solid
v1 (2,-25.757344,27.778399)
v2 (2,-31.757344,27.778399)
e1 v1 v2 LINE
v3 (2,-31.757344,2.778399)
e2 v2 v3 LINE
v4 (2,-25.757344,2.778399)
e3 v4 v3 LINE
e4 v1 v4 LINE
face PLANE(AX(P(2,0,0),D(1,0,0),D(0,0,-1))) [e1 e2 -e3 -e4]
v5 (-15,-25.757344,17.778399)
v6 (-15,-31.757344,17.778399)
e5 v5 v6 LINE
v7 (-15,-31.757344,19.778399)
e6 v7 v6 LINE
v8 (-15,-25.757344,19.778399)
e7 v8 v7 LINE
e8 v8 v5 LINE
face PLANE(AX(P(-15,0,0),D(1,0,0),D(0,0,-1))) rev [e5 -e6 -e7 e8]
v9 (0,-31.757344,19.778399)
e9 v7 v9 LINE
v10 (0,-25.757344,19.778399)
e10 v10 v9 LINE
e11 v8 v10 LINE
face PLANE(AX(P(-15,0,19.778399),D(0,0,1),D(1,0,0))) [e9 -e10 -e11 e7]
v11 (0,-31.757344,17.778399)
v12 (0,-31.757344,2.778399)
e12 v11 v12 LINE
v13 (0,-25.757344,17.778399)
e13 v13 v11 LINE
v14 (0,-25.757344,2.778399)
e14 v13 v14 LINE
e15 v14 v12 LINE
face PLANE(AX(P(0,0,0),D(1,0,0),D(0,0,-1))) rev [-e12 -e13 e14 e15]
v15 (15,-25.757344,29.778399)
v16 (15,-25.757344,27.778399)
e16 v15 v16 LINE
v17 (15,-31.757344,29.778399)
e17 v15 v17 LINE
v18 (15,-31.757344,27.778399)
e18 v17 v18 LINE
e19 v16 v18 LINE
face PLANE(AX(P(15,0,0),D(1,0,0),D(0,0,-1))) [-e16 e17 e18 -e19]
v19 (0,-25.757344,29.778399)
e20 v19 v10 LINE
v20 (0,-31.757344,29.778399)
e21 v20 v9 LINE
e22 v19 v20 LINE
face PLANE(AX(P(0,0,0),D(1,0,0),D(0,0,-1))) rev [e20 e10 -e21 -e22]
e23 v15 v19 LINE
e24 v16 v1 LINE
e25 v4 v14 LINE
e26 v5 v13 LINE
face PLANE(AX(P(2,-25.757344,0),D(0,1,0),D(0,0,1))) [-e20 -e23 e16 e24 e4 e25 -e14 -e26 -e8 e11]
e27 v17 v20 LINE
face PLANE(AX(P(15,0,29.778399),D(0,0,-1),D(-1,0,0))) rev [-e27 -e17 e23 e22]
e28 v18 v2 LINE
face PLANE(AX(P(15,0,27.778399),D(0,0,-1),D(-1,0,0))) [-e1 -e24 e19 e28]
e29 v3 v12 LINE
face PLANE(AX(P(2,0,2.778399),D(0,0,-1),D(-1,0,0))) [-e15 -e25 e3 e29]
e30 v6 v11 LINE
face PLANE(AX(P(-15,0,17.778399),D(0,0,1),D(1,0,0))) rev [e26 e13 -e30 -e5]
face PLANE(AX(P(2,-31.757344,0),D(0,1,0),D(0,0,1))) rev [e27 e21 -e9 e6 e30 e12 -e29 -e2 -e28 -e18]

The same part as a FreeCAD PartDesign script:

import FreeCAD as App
import Part
import Sketcher

V = App.Vector

doc = App.newDocument("Part")
params = doc.addObject("Spreadsheet::Sheet", "Params")
for row, (alias, value) in enumerate([
    ("sketch1_width", "6 mm"),
    ("sketch1_height", "25 mm"),
    ("pad1_length", "2 mm"),
    ("sketch2_width", "6 mm"),
    ("sketch2_height", "2 mm"),
    ("pad2_length", "15 mm"),
    ("sketch3_width", "6 mm"),
    ("sketch3_height", "2 mm"),
    ("pad3_length", "15 mm"),
], start=1):
    params.set(f"A{row}", alias)
    params.set(f"B{row}", "=" + value)
    params.setAlias(f"B{row}", alias)

body = doc.addObject("PartDesign::Body", "Body")

sketch1 = body.newObject("Sketcher::SketchObject", "Sketch")
sketch1.AttachmentSupport = (doc.getObject("YZ_Plane"), [""])
sketch1.MapMode = "FlatFace"
sketch1.addGeometry(Part.LineSegment(V(-32, 3, 0), V(-26, 3, 0)), False)
sketch1.addGeometry(Part.LineSegment(V(-26, 3, 0), V(-26, 28, 0)), False)
sketch1.addGeometry(Part.LineSegment(V(-26, 28, 0), V(-32, 28, 0)), False)
sketch1.addGeometry(Part.LineSegment(V(-32, 28, 0), V(-32, 3, 0)), False)
sketch1.addConstraint(Sketcher.Constraint("Coincident", 0, 2, 1, 1))
sketch1.addConstraint(Sketcher.Constraint("Coincident", 1, 2, 2, 1))
sketch1.addConstraint(Sketcher.Constraint("Coincident", 2, 2, 3, 1))
sketch1.addConstraint(Sketcher.Constraint("Coincident", 3, 2, 0, 1))
sketch1.addConstraint(Sketcher.Constraint("Horizontal", 0))
sketch1.addConstraint(Sketcher.Constraint("Vertical", 1))
sketch1.addConstraint(Sketcher.Constraint("Horizontal", 2))
sketch1.addConstraint(Sketcher.Constraint("Vertical", 3))
sketch1.addConstraint(Sketcher.Constraint("DistanceX", 0, 1, 0, 2, 6.0))
sketch1.addConstraint(Sketcher.Constraint("DistanceY", 1, 1, 1, 2, 25.0))
sketch1.addConstraint(Sketcher.Constraint("DistanceY", -1, 1, 0, 2, 2.778399))
sketch1.addConstraint(Sketcher.Constraint("DistanceX", 0, 2, -1, 1, 25.757344))
sketch1.setExpression("Constraints[8]", "Params.sketch1_width")
sketch1.setExpression("Constraints[9]", "Params.sketch1_height")
pad1 = body.newObject("PartDesign::Pad", "Pad")
pad1.Profile = sketch1
pad1.setExpression("Length", "Params.pad1_length")

sketch2 = body.newObject("Sketcher::SketchObject", "Sketch001")
sketch2.AttachmentSupport = (doc.getObject("YZ_Plane"), [""])
sketch2.MapMode = "FlatFace"
sketch2.addGeometry(Part.LineSegment(V(-25.8, 29.8, 0), V(-31.8, 29.8, 0)), False)
sketch2.addGeometry(Part.LineSegment(V(-31.8, 29.8, 0), V(-31.8, 27.8, 0)), False)
sketch2.addGeometry(Part.LineSegment(V(-31.8, 27.8, 0), V(-25.8, 27.8, 0)), False)
sketch2.addGeometry(Part.LineSegment(V(-25.8, 27.8, 0), V(-25.8, 29.8, 0)), False)
sketch2.addConstraint(Sketcher.Constraint("Coincident", 0, 2, 1, 1))
sketch2.addConstraint(Sketcher.Constraint("Coincident", 1, 2, 2, 1))
sketch2.addConstraint(Sketcher.Constraint("Coincident", 2, 2, 3, 1))
sketch2.addConstraint(Sketcher.Constraint("Coincident", 3, 2, 0, 1))
sketch2.addConstraint(Sketcher.Constraint("Horizontal", 0))
sketch2.addConstraint(Sketcher.Constraint("Vertical", 1))
sketch2.addConstraint(Sketcher.Constraint("Horizontal", 2))
sketch2.addConstraint(Sketcher.Constraint("Vertical", 3))
sketch2.addConstraint(Sketcher.Constraint("DistanceX", 0, 2, 0, 1, 6.0))
sketch2.addConstraint(Sketcher.Constraint("DistanceY", 1, 2, 1, 1, 2.0))
sketch2.addConstraint(Sketcher.Constraint("DistanceY", -1, 1, 0, 2, 29.778399))
sketch2.addConstraint(Sketcher.Constraint("DistanceX", 0, 2, -1, 1, 31.757344))
sketch2.setExpression("Constraints[8]", "Params.sketch2_width")
sketch2.setExpression("Constraints[9]", "Params.sketch2_height")
pad2 = body.newObject("PartDesign::Pad", "Pad001")
pad2.Profile = sketch2
pad2.setExpression("Length", "Params.pad2_length")

sketch3 = body.newObject("Sketcher::SketchObject", "Sketch002")
sketch3.AttachmentSupport = (doc.getObject("YZ_Plane"), [""])
sketch3.MapMode = "FlatFace"
sketch3.addGeometry(Part.LineSegment(V(-25.8, 19.8, 0), V(-31.8, 19.8, 0)), False)
sketch3.addGeometry(Part.LineSegment(V(-31.8, 19.8, 0), V(-31.8, 17.8, 0)), False)
sketch3.addGeometry(Part.LineSegment(V(-31.8, 17.8, 0), V(-25.8, 17.8, 0)), False)
sketch3.addGeometry(Part.LineSegment(V(-25.8, 17.8, 0), V(-25.8, 19.8, 0)), False)
sketch3.addConstraint(Sketcher.Constraint("Coincident", 0, 2, 1, 1))
sketch3.addConstraint(Sketcher.Constraint("Coincident", 1, 2, 2, 1))
sketch3.addConstraint(Sketcher.Constraint("Coincident", 2, 2, 3, 1))
sketch3.addConstraint(Sketcher.Constraint("Coincident", 3, 2, 0, 1))
sketch3.addConstraint(Sketcher.Constraint("Horizontal", 0))
sketch3.addConstraint(Sketcher.Constraint("Vertical", 1))
sketch3.addConstraint(Sketcher.Constraint("Horizontal", 2))
sketch3.addConstraint(Sketcher.Constraint("Vertical", 3))
sketch3.addConstraint(Sketcher.Constraint("DistanceX", 0, 2, 0, 1, 6.0))
sketch3.addConstraint(Sketcher.Constraint("DistanceY", 1, 2, 1, 1, 2.0))
sketch3.addConstraint(Sketcher.Constraint("DistanceY", -1, 1, 0, 2, 19.778399))
sketch3.addConstraint(Sketcher.Constraint("DistanceX", 0, 2, -1, 1, 31.757344))
sketch3.setExpression("Constraints[8]", "Params.sketch3_width")
sketch3.setExpression("Constraints[9]", "Params.sketch3_height")
pad3 = body.newObject("PartDesign::Pad", "Pad002")
pad3.Profile = sketch3
pad3.setExpression("Length", "Params.pad3_length")
pad3.Reversed = True

doc.recompute()
